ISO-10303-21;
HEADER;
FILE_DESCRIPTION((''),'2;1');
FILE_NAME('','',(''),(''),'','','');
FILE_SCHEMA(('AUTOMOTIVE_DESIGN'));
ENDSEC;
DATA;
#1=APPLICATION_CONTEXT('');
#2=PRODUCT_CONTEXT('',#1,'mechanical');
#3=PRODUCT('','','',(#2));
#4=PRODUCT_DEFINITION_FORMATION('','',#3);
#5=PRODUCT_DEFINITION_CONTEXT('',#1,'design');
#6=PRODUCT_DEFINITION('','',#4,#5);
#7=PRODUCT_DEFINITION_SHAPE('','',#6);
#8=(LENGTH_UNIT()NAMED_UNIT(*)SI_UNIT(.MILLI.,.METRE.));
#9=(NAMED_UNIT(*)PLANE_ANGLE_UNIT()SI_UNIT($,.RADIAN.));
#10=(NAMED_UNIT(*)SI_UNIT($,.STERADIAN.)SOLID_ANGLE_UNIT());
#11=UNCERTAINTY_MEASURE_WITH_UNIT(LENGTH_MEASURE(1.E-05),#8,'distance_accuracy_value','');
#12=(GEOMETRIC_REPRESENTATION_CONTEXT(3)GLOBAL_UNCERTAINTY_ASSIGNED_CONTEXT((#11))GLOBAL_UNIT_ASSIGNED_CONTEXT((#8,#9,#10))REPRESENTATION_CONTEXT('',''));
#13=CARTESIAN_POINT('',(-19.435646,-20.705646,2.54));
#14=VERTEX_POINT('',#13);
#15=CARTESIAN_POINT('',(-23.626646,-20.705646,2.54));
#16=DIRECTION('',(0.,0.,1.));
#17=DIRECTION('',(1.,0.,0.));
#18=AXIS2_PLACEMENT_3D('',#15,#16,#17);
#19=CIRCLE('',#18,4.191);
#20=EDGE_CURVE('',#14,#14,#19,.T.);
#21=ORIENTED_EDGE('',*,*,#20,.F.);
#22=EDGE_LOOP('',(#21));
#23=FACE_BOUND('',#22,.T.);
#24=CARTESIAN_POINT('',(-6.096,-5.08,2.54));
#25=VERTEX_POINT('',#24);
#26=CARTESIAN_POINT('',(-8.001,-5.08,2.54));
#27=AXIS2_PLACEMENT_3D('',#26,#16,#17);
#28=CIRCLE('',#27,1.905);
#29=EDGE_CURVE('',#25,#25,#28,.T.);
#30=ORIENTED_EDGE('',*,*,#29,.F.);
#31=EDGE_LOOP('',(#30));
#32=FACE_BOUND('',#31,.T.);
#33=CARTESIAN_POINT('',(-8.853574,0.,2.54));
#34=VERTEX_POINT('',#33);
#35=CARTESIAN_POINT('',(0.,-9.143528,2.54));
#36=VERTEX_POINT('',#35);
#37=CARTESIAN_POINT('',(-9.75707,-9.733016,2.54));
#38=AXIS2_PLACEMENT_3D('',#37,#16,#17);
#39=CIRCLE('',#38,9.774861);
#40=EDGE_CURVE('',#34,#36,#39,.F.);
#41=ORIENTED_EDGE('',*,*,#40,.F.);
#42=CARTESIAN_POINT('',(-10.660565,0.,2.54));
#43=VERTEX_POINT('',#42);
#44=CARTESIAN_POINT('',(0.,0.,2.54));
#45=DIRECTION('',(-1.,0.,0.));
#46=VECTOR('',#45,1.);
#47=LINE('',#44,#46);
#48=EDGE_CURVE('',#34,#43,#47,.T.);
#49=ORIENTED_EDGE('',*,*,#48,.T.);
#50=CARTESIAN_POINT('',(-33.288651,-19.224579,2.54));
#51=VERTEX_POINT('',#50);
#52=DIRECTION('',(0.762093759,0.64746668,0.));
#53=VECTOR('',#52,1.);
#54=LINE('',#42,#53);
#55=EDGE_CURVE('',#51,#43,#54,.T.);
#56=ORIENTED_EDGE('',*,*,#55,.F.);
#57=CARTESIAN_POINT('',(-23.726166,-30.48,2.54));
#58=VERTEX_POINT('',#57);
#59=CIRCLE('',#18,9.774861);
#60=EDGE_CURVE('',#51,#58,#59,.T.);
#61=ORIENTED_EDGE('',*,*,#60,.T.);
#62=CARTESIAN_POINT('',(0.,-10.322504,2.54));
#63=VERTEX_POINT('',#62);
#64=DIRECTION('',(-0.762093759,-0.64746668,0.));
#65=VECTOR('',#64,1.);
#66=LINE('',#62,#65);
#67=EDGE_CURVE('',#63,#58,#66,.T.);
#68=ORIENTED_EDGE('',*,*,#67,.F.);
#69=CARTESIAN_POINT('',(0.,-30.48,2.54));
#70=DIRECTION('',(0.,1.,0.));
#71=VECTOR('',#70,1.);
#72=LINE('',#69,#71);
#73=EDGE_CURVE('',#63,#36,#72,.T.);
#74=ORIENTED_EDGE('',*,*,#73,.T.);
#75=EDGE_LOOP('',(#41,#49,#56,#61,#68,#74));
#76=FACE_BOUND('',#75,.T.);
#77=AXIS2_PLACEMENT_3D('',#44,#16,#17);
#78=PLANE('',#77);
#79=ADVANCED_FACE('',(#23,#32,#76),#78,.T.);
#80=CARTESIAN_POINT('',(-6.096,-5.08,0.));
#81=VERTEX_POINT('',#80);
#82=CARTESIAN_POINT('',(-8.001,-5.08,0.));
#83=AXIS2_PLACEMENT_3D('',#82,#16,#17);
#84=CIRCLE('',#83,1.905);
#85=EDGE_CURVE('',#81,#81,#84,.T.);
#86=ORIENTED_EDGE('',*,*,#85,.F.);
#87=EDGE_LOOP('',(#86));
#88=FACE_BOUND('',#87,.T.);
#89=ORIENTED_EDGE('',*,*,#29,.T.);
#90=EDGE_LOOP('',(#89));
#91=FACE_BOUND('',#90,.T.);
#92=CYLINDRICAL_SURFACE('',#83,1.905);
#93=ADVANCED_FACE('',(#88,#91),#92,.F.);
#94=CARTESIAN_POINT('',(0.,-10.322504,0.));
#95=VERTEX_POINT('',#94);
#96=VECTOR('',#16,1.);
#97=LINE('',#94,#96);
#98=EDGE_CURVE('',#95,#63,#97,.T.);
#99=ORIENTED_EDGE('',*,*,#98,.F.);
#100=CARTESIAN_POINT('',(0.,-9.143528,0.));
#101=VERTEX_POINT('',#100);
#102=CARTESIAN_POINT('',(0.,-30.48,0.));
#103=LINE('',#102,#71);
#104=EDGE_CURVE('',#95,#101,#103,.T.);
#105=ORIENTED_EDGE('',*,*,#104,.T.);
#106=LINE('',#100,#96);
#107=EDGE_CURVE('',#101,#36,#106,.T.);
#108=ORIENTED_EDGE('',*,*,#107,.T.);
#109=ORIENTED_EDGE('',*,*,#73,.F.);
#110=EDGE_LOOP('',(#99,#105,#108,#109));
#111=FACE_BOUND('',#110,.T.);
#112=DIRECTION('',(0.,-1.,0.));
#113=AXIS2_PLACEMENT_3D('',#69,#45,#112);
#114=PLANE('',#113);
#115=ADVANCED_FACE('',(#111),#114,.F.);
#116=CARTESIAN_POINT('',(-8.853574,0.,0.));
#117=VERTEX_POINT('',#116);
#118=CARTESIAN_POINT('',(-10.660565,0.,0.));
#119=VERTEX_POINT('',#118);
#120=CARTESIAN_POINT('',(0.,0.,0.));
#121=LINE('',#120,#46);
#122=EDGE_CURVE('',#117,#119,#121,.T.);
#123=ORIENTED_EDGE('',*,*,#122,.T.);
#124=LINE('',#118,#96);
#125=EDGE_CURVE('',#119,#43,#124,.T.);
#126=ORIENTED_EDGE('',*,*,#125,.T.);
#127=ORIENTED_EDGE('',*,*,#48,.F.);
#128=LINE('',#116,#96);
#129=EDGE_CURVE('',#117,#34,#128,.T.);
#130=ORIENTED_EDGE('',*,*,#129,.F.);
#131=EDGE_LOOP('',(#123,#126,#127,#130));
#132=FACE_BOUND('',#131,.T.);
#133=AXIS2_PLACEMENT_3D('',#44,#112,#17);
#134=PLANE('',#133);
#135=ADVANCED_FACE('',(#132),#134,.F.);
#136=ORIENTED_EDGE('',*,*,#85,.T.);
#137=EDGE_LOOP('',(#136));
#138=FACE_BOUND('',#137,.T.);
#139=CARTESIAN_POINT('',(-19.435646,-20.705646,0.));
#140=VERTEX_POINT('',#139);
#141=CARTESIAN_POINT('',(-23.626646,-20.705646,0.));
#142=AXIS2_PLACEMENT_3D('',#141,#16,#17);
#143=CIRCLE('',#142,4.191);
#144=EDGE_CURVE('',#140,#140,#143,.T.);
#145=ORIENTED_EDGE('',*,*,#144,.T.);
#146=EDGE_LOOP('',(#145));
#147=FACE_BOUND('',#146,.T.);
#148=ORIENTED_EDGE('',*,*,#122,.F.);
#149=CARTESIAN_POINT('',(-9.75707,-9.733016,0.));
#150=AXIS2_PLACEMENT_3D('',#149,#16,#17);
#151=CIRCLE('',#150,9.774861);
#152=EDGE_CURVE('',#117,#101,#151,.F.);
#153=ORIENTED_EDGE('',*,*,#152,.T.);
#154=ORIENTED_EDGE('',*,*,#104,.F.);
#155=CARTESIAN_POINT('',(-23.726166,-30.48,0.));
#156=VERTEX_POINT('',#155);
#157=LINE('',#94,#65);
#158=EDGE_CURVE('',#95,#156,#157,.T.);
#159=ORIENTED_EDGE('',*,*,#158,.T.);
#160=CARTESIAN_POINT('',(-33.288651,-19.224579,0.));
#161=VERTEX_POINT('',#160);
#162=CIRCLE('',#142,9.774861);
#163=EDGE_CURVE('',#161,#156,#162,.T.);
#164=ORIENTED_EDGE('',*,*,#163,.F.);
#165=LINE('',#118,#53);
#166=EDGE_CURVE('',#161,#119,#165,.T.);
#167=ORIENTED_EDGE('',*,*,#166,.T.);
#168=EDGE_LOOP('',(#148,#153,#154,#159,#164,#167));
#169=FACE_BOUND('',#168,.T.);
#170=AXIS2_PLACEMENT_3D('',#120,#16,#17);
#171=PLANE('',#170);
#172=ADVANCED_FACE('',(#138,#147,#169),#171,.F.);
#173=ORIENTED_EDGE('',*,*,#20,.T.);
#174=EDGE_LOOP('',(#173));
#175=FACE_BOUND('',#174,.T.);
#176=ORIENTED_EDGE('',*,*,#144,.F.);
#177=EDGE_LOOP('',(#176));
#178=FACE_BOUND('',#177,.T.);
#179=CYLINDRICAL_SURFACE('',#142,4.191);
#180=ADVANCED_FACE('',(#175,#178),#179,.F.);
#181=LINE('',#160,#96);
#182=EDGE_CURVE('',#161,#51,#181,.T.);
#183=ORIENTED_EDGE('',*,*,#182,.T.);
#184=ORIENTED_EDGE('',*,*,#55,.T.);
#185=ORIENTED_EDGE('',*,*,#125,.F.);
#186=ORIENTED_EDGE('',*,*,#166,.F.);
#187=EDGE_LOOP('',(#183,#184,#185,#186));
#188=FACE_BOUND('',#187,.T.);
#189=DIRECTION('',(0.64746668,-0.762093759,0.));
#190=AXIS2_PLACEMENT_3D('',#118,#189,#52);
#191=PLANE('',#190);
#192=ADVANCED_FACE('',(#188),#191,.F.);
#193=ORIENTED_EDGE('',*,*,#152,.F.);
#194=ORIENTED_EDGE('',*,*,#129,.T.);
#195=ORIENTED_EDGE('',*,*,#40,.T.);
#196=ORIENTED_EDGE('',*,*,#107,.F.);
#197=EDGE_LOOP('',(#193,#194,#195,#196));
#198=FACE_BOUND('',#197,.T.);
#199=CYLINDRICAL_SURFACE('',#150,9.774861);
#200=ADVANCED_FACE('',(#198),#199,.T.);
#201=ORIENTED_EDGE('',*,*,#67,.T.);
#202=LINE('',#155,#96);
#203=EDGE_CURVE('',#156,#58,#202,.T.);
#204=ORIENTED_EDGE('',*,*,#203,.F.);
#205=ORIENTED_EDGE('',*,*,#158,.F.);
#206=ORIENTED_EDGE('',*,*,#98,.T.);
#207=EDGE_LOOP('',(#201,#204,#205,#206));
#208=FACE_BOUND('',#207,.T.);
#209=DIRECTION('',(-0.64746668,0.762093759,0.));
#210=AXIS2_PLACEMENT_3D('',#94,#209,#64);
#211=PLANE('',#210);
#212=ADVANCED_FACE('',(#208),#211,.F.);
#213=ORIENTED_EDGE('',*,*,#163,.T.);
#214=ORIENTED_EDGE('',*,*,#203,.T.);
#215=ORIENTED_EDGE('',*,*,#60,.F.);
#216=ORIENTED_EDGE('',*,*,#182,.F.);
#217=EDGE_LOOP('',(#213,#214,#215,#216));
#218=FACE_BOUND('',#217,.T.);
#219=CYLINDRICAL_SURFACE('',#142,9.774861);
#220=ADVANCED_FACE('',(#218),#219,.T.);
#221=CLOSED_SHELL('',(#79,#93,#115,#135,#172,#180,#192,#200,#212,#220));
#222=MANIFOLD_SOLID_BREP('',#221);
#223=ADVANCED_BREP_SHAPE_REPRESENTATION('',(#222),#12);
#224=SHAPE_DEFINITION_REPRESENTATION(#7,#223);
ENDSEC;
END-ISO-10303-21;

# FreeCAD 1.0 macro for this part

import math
import FreeCAD as App
import Part
import Sketcher
from FreeCAD import Vector
Q = App.Units.Quantity

doc = App.newDocument("Part")
params = doc.addObject("Spreadsheet::Sheet", "Params")
for row, (alias, value) in enumerate([
    ("sketch1_width", "1.5 in"),
    ("sketch1_height", "1.2 in"),
    ("pad1_length", "0.1 in"),
    ("sketch2_diameter", "0.15 in"),
    ("sketch2_diameter2", "0.33 in"),
    ("pocket2_length", "0.1 in"),
    ("pocket3_length", "0.1 in"),
    ("pocket4_length", "0.1 in"),
], start=1):
    params.set(f"A{row}", alias)
    params.set(f"B{row}", "=" + value)
    params.setAlias(f"B{row}", alias)

body = doc.addObject("PartDesign::Body", "Body")

sketch1 = body.newObject("Sketcher::SketchObject", "Sketch")
sketch1.AttachmentSupport = (doc.getObject("XY_Plane"), [""])
sketch1.MapMode = "FlatFace"
sketch1.addGeometry([
    Part.LineSegment(Vector(-38.1, 0, 0), Vector(-38.1, -30.48, 0)),
    Part.LineSegment(Vector(-38.1, -30.48, 0), Vector(0, -30.48, 0)),
    Part.LineSegment(Vector(0, -30.48, 0), Vector(0, 0, 0)),
    Part.LineSegment(Vector(0, 0, 0), Vector(-38.1, 0, 0)),
], False)
sketch1.addConstraint([
    Sketcher.Constraint("Coincident", 0, 2, 1, 1),
    Sketcher.Constraint("Coincident", 1, 2, 2, 1),
    Sketcher.Constraint("Coincident", 2, 2, 3, 1),
    Sketcher.Constraint("Coincident", 3, 2, 0, 1),
    Sketcher.Constraint("Vertical", 0),
    Sketcher.Constraint("Horizontal", 1),
    Sketcher.Constraint("Vertical", 2),
    Sketcher.Constraint("Horizontal", 3),
    Sketcher.Constraint("Coincident", 2, 2, -1, 1),
    Sketcher.Constraint("DistanceX", 1, 1, 1, 2, Q("1.5 in")),
    Sketcher.Constraint("DistanceY", 0, 2, 0, 1, Q("1.2 in")),
])
sketch1.setExpression("Constraints[9]", "Params.sketch1_width")
sketch1.setExpression("Constraints[10]", "Params.sketch1_height")
pad1 = body.newObject("PartDesign::Pad", "Pad")
pad1.Profile = sketch1
pad1.setExpression("Length", "Params.pad1_length")

sketch2 = body.newObject("Sketcher::SketchObject", "Sketch001")
sketch2.AttachmentSupport = (doc.getObject("XY_Plane"), [""])
sketch2.MapMode = "FlatFace"
sketch2.AttachmentOffset = App.Placement(Vector(0, 0, 0.1 * 25.4), App.Rotation())
sketch2.addGeometry([
    Part.Circle(Vector(-8.001, -5.08, 0), Vector(0, 0, 1), 1.905),
    Part.Circle(Vector(-23.626646, -20.705646, 0), Vector(0, 0, 1), 4.191),
], False)
sketch2.addConstraint([
    Sketcher.Constraint("Diameter", 0, Q("0.15 in")),
    Sketcher.Constraint("Diameter", 1, Q("0.33 in")),
    Sketcher.Constraint("DistanceY", 0, 3, -1, 1, Q("0.2 in")),
    Sketcher.Constraint("DistanceX", 0, 3, -1, 1, Q("0.315 in")),
    Sketcher.Constraint("DistanceX", 1, 3, -1, 1, 23.626646),
    Sketcher.Constraint("DistanceY", 1, 3, -1, 1, 20.705646),
])
sketch2.setExpression("Constraints[0]", "Params.sketch2_diameter")
sketch2.setExpression("Constraints[1]", "Params.sketch2_diameter2")
pocket1 = body.newObject("PartDesign::Pocket", "Pocket")
pocket1.Profile = sketch2
pocket1.Type = "ThroughAll"

sketch3 = body.newObject("Sketcher::SketchObject", "Sketch002")
sketch3.AttachmentSupport = (doc.getObject("XY_Plane"), [""])
sketch3.MapMode = "FlatFace"
sketch3.AttachmentOffset = App.Placement(Vector(0, 0, 0.1 * 25.4), App.Rotation())
sketch3.addGeometry([
    Part.LineSegment(Vector(0, -10.322504, 0), Vector(-23.726166, -30.48, 0)),
    Part.LineSegment(Vector(-23.726166, -30.48, 0), Vector(0, -30.48, 0)),
    Part.LineSegment(Vector(0, -30.48, 0), Vector(0, -10.322504, 0)),
    Part.LineSegment(Vector(-10.660565, 0, 0), Vector(-38.1, 0, 0)),
    Part.LineSegment(Vector(-38.1, 0, 0), Vector(-38.1, -23.312249, 0)),
    Part.LineSegment(Vector(-38.1, -23.312249, 0), Vector(-10.660565, 0, 0)),
], False)
sketch3.addConstraint([
    Sketcher.Constraint("Coincident", 0, 2, 1, 1),
    Sketcher.Constraint("Coincident", 1, 2, 2, 1),
    Sketcher.Constraint("Coincident", 2, 2, 0, 1),
    Sketcher.Constraint("Coincident", 3, 2, 4, 1),
    Sketcher.Constraint("Coincident", 4, 2, 5, 1),
    Sketcher.Constraint("Coincident", 5, 2, 3, 1),
    Sketcher.Constraint("Horizontal", 1),
    Sketcher.Constraint("Vertical", 2),
    Sketcher.Constraint("Horizontal", 3),
    Sketcher.Constraint("Vertical", 4),
    Sketcher.Constraint("PointOnObject", 1, 2, -2),
    Sketcher.Constraint("PointOnObject", 3, 2, -1),
    Sketcher.Constraint("Parallel", 0, 5),
    Sketcher.Constraint("DistanceY", 0, 2, -1, 1, Q("1.2 in")),
    Sketcher.Constraint("DistanceX", 3, 2, -1, 1, Q("1.5 in")),
    Sketcher.Constraint("DistanceY", 4, 2, 4, 1, 23.312249),
    Sketcher.Constraint("DistanceX", 0, 2, 5, 2, 13.065601),
    Sketcher.Constraint("Distance", 0, 31.13287),
])
pocket2 = body.newObject("PartDesign::Pocket", "Pocket001")
pocket2.Profile = sketch3
pocket2.setExpression("Length", "Params.pocket2_length")

sketch4 = body.newObject("Sketcher::SketchObject", "Sketch003")
sketch4.AttachmentSupport = (doc.getObject("XY_Plane"), [""])
sketch4.MapMode = "FlatFace"
sketch4.AttachmentOffset = App.Placement(Vector(0, 0, 0.1 * 25.4), App.Rotation())
sketch4.addGeometry([
    Part.LineSegment(Vector(-38.1, -23.312249, 0), Vector(-38.1, -30.48, 0)),
    Part.LineSegment(Vector(-38.1, -30.48, 0), Vector(-23.726166, -30.48, 0)),
    Part.ArcOfCircle(Part.Circle(Vector(-23.626646, -20.705646, 0), Vector(0, 0, 1), 9.774861), math.radians(171.285096), math.radians(269.416647)),
    Part.LineSegment(Vector(-33.288651, -19.224579, 0), Vector(-38.1, -23.312249, 0)),
], False)
sketch4.addConstraint([
    Sketcher.Constraint("Coincident", 0, 2, 1, 1),
    Sketcher.Constraint("Coincident", 1, 2, 2, 2),
    Sketcher.Constraint("Coincident", 2, 1, 3, 1),
    Sketcher.Constraint("Coincident", 3, 2, 0, 1),
    Sketcher.Constraint("Vertical", 0),
    Sketcher.Constraint("Horizontal", 1),
    Sketcher.Constraint("DistanceX", 0, 2, -1, 1, Q("1.5 in")),
    Sketcher.Constraint("DistanceY", 0, 2, -1, 1, Q("1.2 in")),
    Sketcher.Constraint("Radius", 2, 9.774861),
    Sketcher.Constraint("DistanceY", 0, 2, 0, 1, 7.167751),
    Sketcher.Constraint("Distance", 3, 6.313329),
    Sketcher.Constraint("DistanceX", 1, 1, 1, 2, 14.373834),
    Sketcher.Constraint("DistanceX", 2, 1, -1, 1, 33.288651),
])
pocket3 = body.newObject("PartDesign::Pocket", "Pocket002")
pocket3.Profile = sketch4
pocket3.setExpression("Length", "Params.pocket3_length")

sketch5 = body.newObject("Sketcher::SketchObject", "Sketch004")
sketch5.AttachmentSupport = (doc.getObject("XY_Plane"), [""])
sketch5.MapMode = "FlatFace"
sketch5.AttachmentOffset = App.Placement(Vector(0, 0, 0.1 * 25.4), App.Rotation())
sketch5.addGeometry([
    Part.LineSegment(Vector(0, 0, 0), Vector(-8.853574, 0, 0)),
    Part.ArcOfCircle(Part.Circle(Vector(-9.75707, -9.733016, 0), Vector(0, 0, 1), 9.774861), math.radians(3.457407), math.radians(84.696551)),
    Part.LineSegment(Vector(0, -9.143528, 0), Vector(0, 0, 0)),
], False)
sketch5.addConstraint([
    Sketcher.Constraint("Coincident", 0, 2, 1, 2),
    Sketcher.Constraint("Coincident", 1, 1, 2, 1),
    Sketcher.Constraint("Coincident", 2, 2, 0, 1),
    Sketcher.Constraint("Horizontal", 0),
    Sketcher.Constraint("Vertical", 2),
    Sketcher.Constraint("Coincident", 2, 2, -1, 1),
    Sketcher.Constraint("Radius", 1, 9.774861),
    Sketcher.Constraint("DistanceY", 2, 1, 2, 2, 9.143528),
    Sketcher.Constraint("DistanceX", 0, 2, 0, 1, 8.853574),
])
pocket4 = body.newObject("PartDesign::Pocket", "Pocket003")
pocket4.Profile = sketch5
pocket4.setExpression("Length", "Params.pocket4_length")

doc.recompute()
